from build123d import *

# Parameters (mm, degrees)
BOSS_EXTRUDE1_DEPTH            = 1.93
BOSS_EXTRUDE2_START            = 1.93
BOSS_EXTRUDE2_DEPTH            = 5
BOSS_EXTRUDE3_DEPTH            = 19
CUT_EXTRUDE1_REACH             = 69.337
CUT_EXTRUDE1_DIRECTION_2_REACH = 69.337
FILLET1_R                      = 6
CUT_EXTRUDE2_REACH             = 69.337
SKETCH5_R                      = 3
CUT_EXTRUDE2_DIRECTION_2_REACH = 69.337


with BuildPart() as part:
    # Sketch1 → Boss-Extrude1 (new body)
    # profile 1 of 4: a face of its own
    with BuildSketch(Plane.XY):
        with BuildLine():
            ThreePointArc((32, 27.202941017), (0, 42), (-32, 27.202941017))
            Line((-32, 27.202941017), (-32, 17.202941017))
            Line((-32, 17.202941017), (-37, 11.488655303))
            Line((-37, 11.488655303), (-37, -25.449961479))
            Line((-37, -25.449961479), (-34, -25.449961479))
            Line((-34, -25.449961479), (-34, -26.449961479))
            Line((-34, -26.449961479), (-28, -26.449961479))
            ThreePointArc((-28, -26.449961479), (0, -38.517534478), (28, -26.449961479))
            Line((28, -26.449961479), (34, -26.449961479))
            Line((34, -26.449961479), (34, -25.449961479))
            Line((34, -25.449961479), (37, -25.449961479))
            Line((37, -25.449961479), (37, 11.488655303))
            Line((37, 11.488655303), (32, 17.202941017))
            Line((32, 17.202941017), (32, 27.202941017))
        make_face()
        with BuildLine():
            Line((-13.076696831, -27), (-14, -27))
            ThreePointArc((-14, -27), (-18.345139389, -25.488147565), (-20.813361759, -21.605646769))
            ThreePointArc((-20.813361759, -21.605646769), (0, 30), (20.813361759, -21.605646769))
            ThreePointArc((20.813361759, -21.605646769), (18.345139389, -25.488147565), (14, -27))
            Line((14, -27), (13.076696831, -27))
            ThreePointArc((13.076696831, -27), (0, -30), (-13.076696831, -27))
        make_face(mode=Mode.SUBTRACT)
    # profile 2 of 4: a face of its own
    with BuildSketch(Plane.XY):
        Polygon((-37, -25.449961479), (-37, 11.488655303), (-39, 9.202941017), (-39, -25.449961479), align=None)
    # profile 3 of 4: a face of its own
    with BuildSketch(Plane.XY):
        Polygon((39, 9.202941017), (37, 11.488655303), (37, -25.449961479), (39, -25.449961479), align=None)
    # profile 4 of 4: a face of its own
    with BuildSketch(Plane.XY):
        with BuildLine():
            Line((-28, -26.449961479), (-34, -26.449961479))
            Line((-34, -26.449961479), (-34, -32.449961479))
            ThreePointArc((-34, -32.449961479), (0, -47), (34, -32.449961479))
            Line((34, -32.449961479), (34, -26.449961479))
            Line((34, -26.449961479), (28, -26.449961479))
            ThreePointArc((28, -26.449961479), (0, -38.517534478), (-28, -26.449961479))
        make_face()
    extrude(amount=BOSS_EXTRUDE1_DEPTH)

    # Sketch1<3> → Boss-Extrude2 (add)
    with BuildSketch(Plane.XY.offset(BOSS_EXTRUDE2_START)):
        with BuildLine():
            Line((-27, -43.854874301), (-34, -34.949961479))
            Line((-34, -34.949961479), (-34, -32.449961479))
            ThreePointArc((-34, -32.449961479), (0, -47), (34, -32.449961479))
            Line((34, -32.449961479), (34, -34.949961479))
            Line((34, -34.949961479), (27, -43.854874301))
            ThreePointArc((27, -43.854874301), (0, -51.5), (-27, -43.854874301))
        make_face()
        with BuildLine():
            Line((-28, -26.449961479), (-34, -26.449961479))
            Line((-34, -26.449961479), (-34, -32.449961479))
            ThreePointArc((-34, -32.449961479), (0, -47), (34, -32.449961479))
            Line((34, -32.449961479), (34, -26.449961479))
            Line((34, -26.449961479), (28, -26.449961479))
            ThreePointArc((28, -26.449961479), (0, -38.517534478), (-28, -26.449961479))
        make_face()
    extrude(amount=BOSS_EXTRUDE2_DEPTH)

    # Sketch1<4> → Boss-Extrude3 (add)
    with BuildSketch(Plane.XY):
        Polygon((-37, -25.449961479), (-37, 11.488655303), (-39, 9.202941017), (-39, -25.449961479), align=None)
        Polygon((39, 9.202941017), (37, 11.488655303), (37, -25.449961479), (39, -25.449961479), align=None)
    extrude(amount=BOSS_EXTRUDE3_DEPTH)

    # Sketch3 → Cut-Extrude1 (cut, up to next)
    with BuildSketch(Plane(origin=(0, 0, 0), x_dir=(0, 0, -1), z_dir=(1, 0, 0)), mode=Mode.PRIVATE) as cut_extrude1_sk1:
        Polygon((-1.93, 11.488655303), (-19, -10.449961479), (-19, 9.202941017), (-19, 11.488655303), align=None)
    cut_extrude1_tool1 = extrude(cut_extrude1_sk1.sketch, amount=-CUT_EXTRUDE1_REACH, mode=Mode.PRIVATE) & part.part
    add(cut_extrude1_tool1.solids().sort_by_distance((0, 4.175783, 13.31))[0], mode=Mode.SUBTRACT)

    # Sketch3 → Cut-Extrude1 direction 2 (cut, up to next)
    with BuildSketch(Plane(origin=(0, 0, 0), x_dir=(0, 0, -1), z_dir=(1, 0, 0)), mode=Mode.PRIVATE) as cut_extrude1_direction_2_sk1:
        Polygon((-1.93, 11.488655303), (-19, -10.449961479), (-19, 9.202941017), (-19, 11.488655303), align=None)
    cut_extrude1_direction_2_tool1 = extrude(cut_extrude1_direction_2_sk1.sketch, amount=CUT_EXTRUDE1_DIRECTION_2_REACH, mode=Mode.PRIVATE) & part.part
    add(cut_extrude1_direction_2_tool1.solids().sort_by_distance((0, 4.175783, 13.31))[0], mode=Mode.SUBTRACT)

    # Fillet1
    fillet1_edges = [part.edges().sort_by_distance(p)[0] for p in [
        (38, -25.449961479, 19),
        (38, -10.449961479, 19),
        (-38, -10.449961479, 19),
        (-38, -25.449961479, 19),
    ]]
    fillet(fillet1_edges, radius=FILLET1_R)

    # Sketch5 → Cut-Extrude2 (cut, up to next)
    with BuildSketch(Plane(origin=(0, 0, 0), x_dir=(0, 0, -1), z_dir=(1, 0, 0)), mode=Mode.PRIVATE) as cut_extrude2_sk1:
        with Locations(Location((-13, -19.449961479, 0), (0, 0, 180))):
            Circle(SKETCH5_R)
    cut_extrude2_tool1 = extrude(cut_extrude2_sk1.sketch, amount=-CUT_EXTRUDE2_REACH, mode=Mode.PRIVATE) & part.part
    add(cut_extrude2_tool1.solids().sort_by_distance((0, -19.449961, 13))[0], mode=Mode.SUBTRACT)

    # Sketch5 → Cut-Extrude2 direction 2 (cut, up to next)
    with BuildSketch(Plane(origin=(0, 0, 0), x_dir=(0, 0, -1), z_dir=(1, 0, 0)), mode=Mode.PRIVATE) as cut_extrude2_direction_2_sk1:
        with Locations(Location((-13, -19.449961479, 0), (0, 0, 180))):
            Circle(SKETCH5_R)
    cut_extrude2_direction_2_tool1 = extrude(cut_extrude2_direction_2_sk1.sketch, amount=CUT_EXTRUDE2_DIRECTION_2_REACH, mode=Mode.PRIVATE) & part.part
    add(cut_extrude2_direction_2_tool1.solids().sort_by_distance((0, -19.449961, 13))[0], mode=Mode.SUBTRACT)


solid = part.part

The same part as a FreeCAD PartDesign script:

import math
import FreeCAD as App
import Part
import Sketcher


def edges_at(feature, points):
    """Names of the edges that pass closest to the given points."""
    edges = feature.Shape.Edges
    near = lambda p: min(range(len(edges)), key=lambda i: edges[i].distToShape(Part.Vertex(*p))[0])
    return sorted({f"Edge{near(p) + 1}" for p in points})

doc = App.newDocument("Part")
body = doc.addObject("PartDesign::Body", "Body")

sketch1 = body.newObject("Sketcher::SketchObject", "Sketch")
sketch1.AttachmentSupport = (doc.getObject("XY_Plane"), [""])
sketch1.MapMode = "FlatFace"
sketch1.addGeometry([
    Part.ArcOfCircle(Part.Circle(App.Vector(0, 0, 0), App.Vector(0, 0, 1), 42), math.radians(40), math.radians(140)),
    Part.LineSegment(App.Vector(-32, 27.2, 0), App.Vector(-32, 17.2, 0)),
    Part.LineSegment(App.Vector(-32, 17.2, 0), App.Vector(-37, 11.5, 0)),
    Part.LineSegment(App.Vector(-37, 11.5, 0), App.Vector(-39, 9.2, 0)),
    Part.LineSegment(App.Vector(-39, 9.2, 0), App.Vector(-39, -25.4, 0)),
    Part.LineSegment(App.Vector(-39, -25.4, 0), App.Vector(-34, -25.4, 0)),
    Part.LineSegment(App.Vector(-34, -25.4, 0), App.Vector(-34, -32.4, 0)),
    Part.ArcOfCircle(Part.Circle(App.Vector(0, 0, 0), App.Vector(0, 0, 1), 47), math.radians(-136), math.radians(-44)),
    Part.LineSegment(App.Vector(34, -32.4, 0), App.Vector(34, -25.4, 0)),
    Part.LineSegment(App.Vector(34, -25.4, 0), App.Vector(39, -25.4, 0)),
    Part.LineSegment(App.Vector(39, -25.4, 0), App.Vector(39, 9.2, 0)),
    Part.LineSegment(App.Vector(39, 9.2, 0), App.Vector(37, 11.5, 0)),
    Part.LineSegment(App.Vector(37, 11.5, 0), App.Vector(32, 17.2, 0)),
    Part.LineSegment(App.Vector(32, 17.2, 0), App.Vector(32, 27.2, 0)),
    Part.ArcOfCircle(Part.Circle(App.Vector(0, 0, 0), App.Vector(0, 0, 1), 30), math.radians(-116), math.radians(-64)),
    Part.LineSegment(App.Vector(-13.1, -27, 0), App.Vector(-14, -27, 0)),
    Part.ArcOfCircle(Part.Circle(App.Vector(-14, -20, 0), App.Vector(0, 0, 1), 7), math.radians(-167), math.radians(-90)),
    Part.ArcOfCircle(Part.Circle(App.Vector(0, 0, 0), App.Vector(0, 0, 1), 30), math.radians(-46), math.radians(226)),
    Part.ArcOfCircle(Part.Circle(App.Vector(14, -20, 0), App.Vector(0, 0, 1), 7), math.radians(-90), math.radians(-13)),
    Part.LineSegment(App.Vector(14, -27, 0), App.Vector(13.1, -27, 0)),
], False)
sketch1.addConstraint([
    Sketcher.Constraint("Coincident", 0, 2, 1, 1),
    Sketcher.Constraint("Coincident", 1, 2, 2, 1),
    Sketcher.Constraint("Coincident", 2, 2, 3, 1),
    Sketcher.Constraint("Coincident", 3, 2, 4, 1),
    Sketcher.Constraint("Coincident", 4, 2, 5, 1),
    Sketcher.Constraint("Coincident", 5, 2, 6, 1),
    Sketcher.Constraint("Coincident", 6, 2, 7, 1),
    Sketcher.Constraint("Coincident", 7, 2, 8, 1),
    Sketcher.Constraint("Coincident", 8, 2, 9, 1),
    Sketcher.Constraint("Coincident", 9, 2, 10, 1),
    Sketcher.Constraint("Coincident", 10, 2, 11, 1),
    Sketcher.Constraint("Coincident", 11, 2, 12, 1),
    Sketcher.Constraint("Coincident", 12, 2, 13, 1),
    Sketcher.Constraint("Coincident", 13, 2, 0, 1),
    Sketcher.Constraint("Coincident", 14, 1, 15, 1),
    Sketcher.Constraint("Tangent", 15, 2, 16, 2),
    Sketcher.Constraint("Coincident", 16, 1, 17, 2),
    Sketcher.Constraint("Coincident", 17, 1, 18, 2),
    Sketcher.Constraint("Tangent", 18, 1, 19, 1),
    Sketcher.Constraint("Coincident", 19, 2, 14, 2),
    Sketcher.Constraint("Vertical", 1),
    Sketcher.Constraint("Vertical", 4),
    Sketcher.Constraint("Horizontal", 5),
    Sketcher.Constraint("Vertical", 6),
    Sketcher.Constraint("Vertical", 8),
    Sketcher.Constraint("Horizontal", 9),
    Sketcher.Constraint("Vertical", 10),
    Sketcher.Constraint("Vertical", 13),
    Sketcher.Constraint("Horizontal", 15),
    Sketcher.Constraint("Horizontal", 19),
    Sketcher.Constraint("Coincident", 0, 3, -1, 1),
    Sketcher.Constraint("Coincident", 7, 3, -1, 1),
    Sketcher.Constraint("Coincident", 14, 3, -1, 1),
    Sketcher.Constraint("Coincident", 17, 3, -1, 1),
    Sketcher.Constraint("Equal", 14, 17),
    Sketcher.Constraint("Equal", 16, 18),
    Sketcher.Constraint("Symmetric", 16, 3, 18, 3, -2),
    Sketcher.Constraint("Symmetric", 5, 2, 8, 2, -2),
    Sketcher.Constraint("Symmetric", 3, 2, 10, 2, -2),
    Sketcher.Constraint("Symmetric", 2, 2, 11, 2, -2),
    Sketcher.Constraint("Symmetric", 1, 2, 12, 2, -2),
    Sketcher.Constraint("Parallel", 2, 3),
    Sketcher.Constraint("Radius", 0, 42.0),
    Sketcher.Constraint("Radius", 7, 47.0),
    Sketcher.Constraint("Radius", 14, 30.0),
    Sketcher.Constraint("Radius", 16, 7.0),
    Sketcher.Constraint("DistanceX", 5, 1, 5, 2, 5.0),
    Sketcher.Constraint("DistanceY", 1, 2, 1, 1, 10.0),
    Sketcher.Constraint("DistanceY", 6, 2, 6, 1, 7.0),
    Sketcher.Constraint("DistanceX", 16, 3, -1, 1, 14.0),
    Sketcher.Constraint("DistanceY", 16, 3, -1, 1, 20.0),
    Sketcher.Constraint("DistanceX", 0, 2, -1, 1, 32.0),
    Sketcher.Constraint("DistanceX", 2, 2, -1, 1, 37.0),
    Sketcher.Constraint("DistanceX", 3, 2, -1, 1, 39.0),
    Sketcher.Constraint("DistanceY", 3, 2, 1, 2, 8.0),
])
pad1 = body.newObject("PartDesign::Pad", "Pad")
pad1.Profile = sketch1
pad1.Length = 1.93

sketch2 = body.newObject("Sketcher::SketchObject", "Sketch001")
sketch2.AttachmentSupport = (doc.getObject("XY_Plane"), [""])
sketch2.MapMode = "FlatFace"
sketch2.AttachmentOffset = App.Placement(App.Vector(0, 0, 1.93), App.Rotation())
sketch2.addGeometry([
    Part.LineSegment(App.Vector(-34, -35, 0), App.Vector(-27, -44, 0)),
    Part.ArcOfCircle(Part.Circle(App.Vector(0, 0, 0), App.Vector(0, 0, 1), 51), math.radians(-122), math.radians(-58)),
    Part.LineSegment(App.Vector(27, -44, 0), App.Vector(34, -35, 0)),
    Part.LineSegment(App.Vector(34, -35, 0), App.Vector(34, -26, 0)),
    Part.LineSegment(App.Vector(34, -26, 0), App.Vector(28, -26, 0)),
    Part.ArcOfCircle(Part.Circle(App.Vector(0, 0, 0), App.Vector(0, 0, 1), 39), math.radians(-137), math.radians(-43)),
    Part.LineSegment(App.Vector(-28, -26, 0), App.Vector(-34, -26, 0)),
    Part.LineSegment(App.Vector(-34, -26, 0), App.Vector(-34, -35, 0)),
], False)
sketch2.addConstraint([
    Sketcher.Constraint("Coincident", 0, 2, 1, 1),
    Sketcher.Constraint("Coincident", 1, 2, 2, 1),
    Sketcher.Constraint("Coincident", 2, 2, 3, 1),
    Sketcher.Constraint("Coincident", 3, 2, 4, 1),
    Sketcher.Constraint("Coincident", 4, 2, 5, 2),
    Sketcher.Constraint("Coincident", 5, 1, 6, 1),
    Sketcher.Constraint("Coincident", 6, 2, 7, 1),
    Sketcher.Constraint("Coincident", 7, 2, 0, 1),
    Sketcher.Constraint("Vertical", 3),
    Sketcher.Constraint("Horizontal", 4),
    Sketcher.Constraint("Horizontal", 6),
    Sketcher.Constraint("Vertical", 7),
    Sketcher.Constraint("Coincident", 1, 3, -1, 1),
    Sketcher.Constraint("Coincident", 5, 3, -1, 1),
    Sketcher.Constraint("Symmetric", 3, 2, 6, 2, -2),
    Sketcher.Constraint("Horizontal", 0, 2, 1, 2),
    Sketcher.Constraint("Horizontal", 2, 2, 7, 2),
    Sketcher.Constraint("Radius", 1, 51.5),
    Sketcher.Constraint("DistanceX", 4, 2, 4, 1, 6.0),
    Sketcher.Constraint("DistanceY", 3, 1, 3, 2, 8.5),
    Sketcher.Constraint("DistanceX", 0, 2, -1, 1, 27.0),
    Sketcher.Constraint("DistanceX", -1, 1, 2, 2, 34.0),
    Sketcher.Constraint("Radius", 5, 38.517534),
])
pad2 = body.newObject("PartDesign::Pad", "Pad001")
pad2.Profile = sketch2
pad2.Length = 5

sketch3 = body.newObject("Sketcher::SketchObject", "Sketch002")
sketch3.AttachmentSupport = (doc.getObject("XY_Plane"), [""])
sketch3.MapMode = "FlatFace"
sketch3.addGeometry([
    Part.LineSegment(App.Vector(-37, -25.4, 0), App.Vector(-37, 11.5, 0)),
    Part.LineSegment(App.Vector(-37, 11.5, 0), App.Vector(-39, 9.2, 0)),
    Part.LineSegment(App.Vector(-39, 9.2, 0), App.Vector(-39, -25.4, 0)),
    Part.LineSegment(App.Vector(-39, -25.4, 0), App.Vector(-37, -25.4, 0)),
    Part.LineSegment(App.Vector(39, 9.2, 0), App.Vector(37, 11.5, 0)),
    Part.LineSegment(App.Vector(37, 11.5, 0), App.Vector(37, -25.4, 0)),
    Part.LineSegment(App.Vector(37, -25.4, 0), App.Vector(39, -25.4, 0)),
    Part.LineSegment(App.Vector(39, -25.4, 0), App.Vector(39, 9.2, 0)),
], False)
sketch3.addConstraint([
    Sketcher.Constraint("Coincident", 0, 2, 1, 1),
    Sketcher.Constraint("Coincident", 1, 2, 2, 1),
    Sketcher.Constraint("Coincident", 2, 2, 3, 1),
    Sketcher.Constraint("Coincident", 3, 2, 0, 1),
    Sketcher.Constraint("Coincident", 4, 2, 5, 1),
    Sketcher.Constraint("Coincident", 5, 2, 6, 1),
    Sketcher.Constraint("Coincident", 6, 2, 7, 1),
    Sketcher.Constraint("Coincident", 7, 2, 4, 1),
    Sketcher.Constraint("Vertical", 0),
    Sketcher.Constraint("Vertical", 2),
    Sketcher.Constraint("Horizontal", 3),
    Sketcher.Constraint("Vertical", 5),
    Sketcher.Constraint("Horizontal", 6),
    Sketcher.Constraint("Vertical", 7),
    Sketcher.Constraint("Symmetric", 0, 2, 4, 2, -2),
    Sketcher.Constraint("Symmetric", 2, 2, 6, 2, -2),
    Sketcher.Constraint("Horizontal", 1, 2, 7, 2),
    Sketcher.Constraint("DistanceX", 3, 1, 3, 2, 2.0),
    Sketcher.Constraint("DistanceX", 0, 2, -1, 1, 37.0),
    Sketcher.Constraint("DistanceY", 0, 1, 0, 2, 36.938617),
    Sketcher.Constraint("DistanceY", 2, 2, 2, 1, 34.652902),
    Sketcher.Constraint("DistanceY", -1, 1, 1, 2, 9.202941),
])
pad3 = body.newObject("PartDesign::Pad", "Pad002")
pad3.Profile = sketch3
pad3.Length = 19

sketch4 = body.newObject("Sketcher::SketchObject", "Sketch003")
sketch4.AttachmentSupport = (doc.getObject("YZ_Plane"), [""])
sketch4.MapMode = "FlatFace"
sketch4.addGeometry([
    Part.LineSegment(App.Vector(-10, 19, 0), App.Vector(11, 2, 0)),
    Part.LineSegment(App.Vector(11, 2, 0), App.Vector(11, 19, 0)),
    Part.LineSegment(App.Vector(11, 19, 0), App.Vector(-10, 19, 0)),
], False)
sketch4.addConstraint([
    Sketcher.Constraint("Coincident", 0, 2, 1, 1),
    Sketcher.Constraint("Coincident", 1, 2, 2, 1),
    Sketcher.Constraint("Coincident", 2, 2, 0, 1),
    Sketcher.Constraint("Vertical", 1),
    Sketcher.Constraint("Horizontal", 2),
    Sketcher.Constraint("DistanceY", -1, 1, 1, 2, 19.0),
    Sketcher.Constraint("DistanceY", 1, 1, 1, 2, 17.07),
    Sketcher.Constraint("DistanceX", 2, 2, 2, 1, 21.938617),
    Sketcher.Constraint("DistanceX", 2, 2, -1, 1, 10.449961),
])
pocket1 = body.newObject("PartDesign::Pocket", "Pocket")
pocket1.Profile = sketch4
pocket1.Length = 39

sketch5 = body.newObject("Sketcher::SketchObject", "Sketch004")
sketch5.AttachmentSupport = (doc.getObject("YZ_Plane"), [""])
sketch5.MapMode = "FlatFace"
sketch5.addGeometry([
    Part.LineSegment(App.Vector(-10, 19, 0), App.Vector(11, 2, 0)),
    Part.LineSegment(App.Vector(11, 2, 0), App.Vector(11, 19, 0)),
    Part.LineSegment(App.Vector(11, 19, 0), App.Vector(-10, 19, 0)),
], False)
sketch5.addConstraint([
    Sketcher.Constraint("Coincident", 0, 2, 1, 1),
    Sketcher.Constraint("Coincident", 1, 2, 2, 1),
    Sketcher.Constraint("Coincident", 2, 2, 0, 1),
    Sketcher.Constraint("Vertical", 1),
    Sketcher.Constraint("Horizontal", 2),
    Sketcher.Constraint("DistanceY", -1, 1, 1, 2, 19.0),
    Sketcher.Constraint("DistanceY", 1, 1, 1, 2, 17.07),
    Sketcher.Constraint("DistanceX", 2, 2, 2, 1, 21.938617),
    Sketcher.Constraint("DistanceX", 2, 2, -1, 1, 10.449961),
])
pocket2 = body.newObject("PartDesign::Pocket", "Pocket001")
pocket2.Profile = sketch5
pocket2.Length = 39
pocket2.Reversed = True
doc.recompute()

fillet = body.newObject("PartDesign::Fillet", "Fillet")
fillet.Base = (pocket2, edges_at(pocket2, [
    (38, -25.45, 19),
    (38, -10.45, 19),
    (-38, -10.45, 19),
    (-38, -25.45, 19),
]))
fillet.Radius = 6

sketch6 = body.newObject("Sketcher::SketchObject", "Sketch005")
sketch6.AttachmentSupport = (doc.getObject("YZ_Plane"), [""])
sketch6.MapMode = "FlatFace"
sketch6.addGeometry(Part.Circle(App.Vector(-19.4, 13, 0), App.Vector(0, 0, 1), 3), False)
sketch6.addConstraint([
    Sketcher.Constraint("Diameter", 0, 6.0),
    Sketcher.Constraint("DistanceY", -1, 1, 0, 3, 13.0),
    Sketcher.Constraint("DistanceX", 0, 3, -1, 1, 19.449961),
])
pocket3 = body.newObject("PartDesign::Pocket", "Pocket002")
pocket3.Profile = sketch6
pocket3.Length = 39

sketch7 = body.newObject("Sketcher::SketchObject", "Sketch006")
sketch7.AttachmentSupport = (doc.getObject("YZ_Plane"), [""])
sketch7.MapMode = "FlatFace"
sketch7.addGeometry(Part.Circle(App.Vector(-19.4, 13, 0), App.Vector(0, 0, 1), 3), False)
sketch7.addConstraint([
    Sketcher.Constraint("Diameter", 0, 6.0),
    Sketcher.Constraint("DistanceY", -1, 1, 0, 3, 13.0),
    Sketcher.Constraint("DistanceX", 0, 3, -1, 1, 19.449961),
])
pocket4 = body.newObject("PartDesign::Pocket", "Pocket003")
pocket4.Profile = sketch7
pocket4.Length = 39
pocket4.Reversed = True

doc.recompute()
